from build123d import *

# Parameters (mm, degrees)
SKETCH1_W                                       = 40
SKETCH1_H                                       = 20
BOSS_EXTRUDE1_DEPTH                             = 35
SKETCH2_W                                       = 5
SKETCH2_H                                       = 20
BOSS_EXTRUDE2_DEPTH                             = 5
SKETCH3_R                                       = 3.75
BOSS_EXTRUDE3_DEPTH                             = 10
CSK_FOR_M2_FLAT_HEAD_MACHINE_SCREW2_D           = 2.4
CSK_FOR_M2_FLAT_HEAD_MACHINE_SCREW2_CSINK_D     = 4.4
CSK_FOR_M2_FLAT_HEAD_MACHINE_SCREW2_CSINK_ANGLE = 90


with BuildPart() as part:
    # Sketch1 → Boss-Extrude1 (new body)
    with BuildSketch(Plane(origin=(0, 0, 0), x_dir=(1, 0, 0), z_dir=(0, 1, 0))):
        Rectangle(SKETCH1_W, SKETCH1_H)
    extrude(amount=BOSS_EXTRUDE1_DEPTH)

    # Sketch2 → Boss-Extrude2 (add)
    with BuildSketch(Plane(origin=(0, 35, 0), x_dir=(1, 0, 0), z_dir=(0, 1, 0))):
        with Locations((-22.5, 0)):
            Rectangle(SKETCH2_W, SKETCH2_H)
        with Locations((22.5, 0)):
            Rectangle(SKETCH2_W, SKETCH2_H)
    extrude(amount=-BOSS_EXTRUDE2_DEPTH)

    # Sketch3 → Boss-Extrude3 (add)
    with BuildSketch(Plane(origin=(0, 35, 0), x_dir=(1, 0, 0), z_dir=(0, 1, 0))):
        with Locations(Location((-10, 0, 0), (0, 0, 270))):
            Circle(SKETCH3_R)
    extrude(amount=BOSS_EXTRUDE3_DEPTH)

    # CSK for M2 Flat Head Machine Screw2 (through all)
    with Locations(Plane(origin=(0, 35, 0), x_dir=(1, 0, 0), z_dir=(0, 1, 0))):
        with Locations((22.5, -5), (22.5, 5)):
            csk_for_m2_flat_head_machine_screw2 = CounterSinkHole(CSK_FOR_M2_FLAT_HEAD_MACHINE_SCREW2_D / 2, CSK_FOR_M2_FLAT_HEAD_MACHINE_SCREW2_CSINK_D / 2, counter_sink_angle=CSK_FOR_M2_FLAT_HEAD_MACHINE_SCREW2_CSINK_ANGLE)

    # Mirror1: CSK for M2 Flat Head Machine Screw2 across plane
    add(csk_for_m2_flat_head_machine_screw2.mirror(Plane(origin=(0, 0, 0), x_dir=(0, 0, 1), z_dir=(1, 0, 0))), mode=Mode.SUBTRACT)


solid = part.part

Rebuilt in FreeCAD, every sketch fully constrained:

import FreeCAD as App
import Part
import Sketcher

V = App.Vector
Q = App.Units.Quantity

doc = App.newDocument("Part")
body = doc.addObject("PartDesign::Body", "Body")

# Sketch on XZ plane
sketch1 = body.newObject("Sketcher::SketchObject", "Sketch")
sketch1.AttachmentSupport = (doc.getObject("XZ_Plane"), [""])
sketch1.MapMode = "FlatFace"
sketch1.addGeometry([
    Part.LineSegment(V(-20, -10, 0), V(-20, 10, 0)),
    Part.LineSegment(V(-20, 10, 0), V(20, 10, 0)),
    Part.LineSegment(V(20, 10, 0), V(20, -10, 0)),
    Part.LineSegment(V(20, -10, 0), V(-20, -10, 0)),
], False)
sketch1.addConstraint([
    Sketcher.Constraint("Coincident", 0, 2, 1, 1),
    Sketcher.Constraint("Coincident", 1, 2, 2, 1),
    Sketcher.Constraint("Coincident", 2, 2, 3, 1),
    Sketcher.Constraint("Coincident", 3, 2, 0, 1),
    Sketcher.Constraint("Vertical", 0),
    Sketcher.Constraint("Horizontal", 1),
    Sketcher.Constraint("Vertical", 2),
    Sketcher.Constraint("Horizontal", 3),
    Sketcher.Constraint("Symmetric", 0, 2, 2, 2, -1, 1),
    Sketcher.Constraint("DistanceX", 1, 1, 1, 2, Q("40 mm")),
    Sketcher.Constraint("DistanceY", 0, 1, 0, 2, Q("20 mm")),
])
pad1 = body.newObject("PartDesign::Pad", "Pad")
pad1.Profile = sketch1
pad1.Length = 35
pad1.Reversed = True

# Sketch on XZ plane
sketch2 = body.newObject("Sketcher::SketchObject", "Sketch001")
sketch2.AttachmentSupport = (doc.getObject("XZ_Plane"), [""])
sketch2.MapMode = "FlatFace"
sketch2.AttachmentOffset = App.Placement(V(0, 0, -35), App.Rotation())
sketch2.addGeometry([
    Part.LineSegment(V(-25, -10, 0), V(-25, 10, 0)),  # 0
    Part.LineSegment(V(-25, 10, 0), V(-20, 10, 0)),  # 1
    Part.LineSegment(V(-20, 10, 0), V(-20, -10, 0)),  # 2
    Part.LineSegment(V(-20, -10, 0), V(-25, -10, 0)),  # 3
    Part.LineSegment(V(20, -10, 0), V(20, 10, 0)),  # 4
    Part.LineSegment(V(20, 10, 0), V(25, 10, 0)),  # 5
    Part.LineSegment(V(25, 10, 0), V(25, -10, 0)),  # 6
    Part.LineSegment(V(25, -10, 0), V(20, -10, 0)),  # 7
], False)
sketch2.addConstraint([
    Sketcher.Constraint("Coincident", 0, 2, 1, 1),
    Sketcher.Constraint("Coincident", 1, 2, 2, 1),
    Sketcher.Constraint("Coincident", 2, 2, 3, 1),
    Sketcher.Constraint("Coincident", 3, 2, 0, 1),
    Sketcher.Constraint("Coincident", 4, 2, 5, 1),
    Sketcher.Constraint("Coincident", 5, 2, 6, 1),
    Sketcher.Constraint("Coincident", 6, 2, 7, 1),
    Sketcher.Constraint("Coincident", 7, 2, 4, 1),
    Sketcher.Constraint("Vertical", 0),
    Sketcher.Constraint("Horizontal", 1),
    Sketcher.Constraint("Vertical", 2),
    Sketcher.Constraint("Horizontal", 3),
    Sketcher.Constraint("Vertical", 4),
    Sketcher.Constraint("Horizontal", 5),
    Sketcher.Constraint("Vertical", 6),
    Sketcher.Constraint("Horizontal", 7),
    Sketcher.Constraint("Symmetric", 2, 2, 4, 2, -1, 1),
    Sketcher.Constraint("Symmetric", 0, 2, 6, 2, -1, 1),
    Sketcher.Constraint("Horizontal", 1, 2, 4, 2),
    Sketcher.Constraint("DistanceX", 1, 1, 1, 2, Q("5 mm")),
    Sketcher.Constraint("DistanceY", 0, 1, 0, 2, Q("20 mm")),
    Sketcher.Constraint("DistanceX", 0, 2, -1, 1, Q("25 mm")),
])
pad2 = body.newObject("PartDesign::Pad", "Pad001")
pad2.Profile = sketch2
pad2.Length = 5

# Sketch on XZ plane
sketch3 = body.newObject("Sketcher::SketchObject", "Sketch002")
sketch3.AttachmentSupport = (doc.getObject("XZ_Plane"), [""])
sketch3.MapMode = "FlatFace"
sketch3.AttachmentOffset = App.Placement(V(0, 0, -35), App.Rotation())
sketch3.addGeometry(Part.Circle(V(-10, 0, 0), V(0, 0, 1), 3.75), False)
sketch3.addConstraint([
    Sketcher.Constraint("PointOnObject", 0, 3, -1),
    Sketcher.Constraint("Diameter", 0, Q("7.5 mm")),
    Sketcher.Constraint("DistanceX", 0, 3, -1, 1, Q("10 mm")),
])
pad3 = body.newObject("PartDesign::Pad", "Pad002")
pad3.Profile = sketch3
pad3.Length = 10
pad3.Reversed = True

# Sketch on XZ plane
sketch4 = body.newObject("Sketcher::SketchObject", "Sketch003")
sketch4.AttachmentSupport = (doc.getObject("XZ_Plane"), [""])
sketch4.MapMode = "FlatFace"
sketch4.AttachmentOffset = App.Placement(V(0, 0, -35), App.Rotation())
sketch4.addGeometry([
    Part.Circle(V(22.5, 5, 0), V(0, 0, 1), 1.2),
    Part.Circle(V(22.5, -5, 0), V(0, 0, 1), 1.2),
], False)
sketch4.addConstraint([
    Sketcher.Constraint("Equal", 0, 1),
    Sketcher.Constraint("Symmetric", 0, 3, 1, 3, -1),
    Sketcher.Constraint("Diameter", 0, Q("2.4 mm")),
    Sketcher.Constraint("DistanceY", -1, 1, 0, 3, Q("5 mm")),
    Sketcher.Constraint("DistanceX", -1, 1, 0, 3, Q("22.5 mm")),
])
doc.recompute()
hole = body.newObject("PartDesign::Hole", "Hole")
hole.Profile = sketch4
hole.ThreadType = "None"
hole.Diameter = 2.4
hole.DepthType = "ThroughAll"
hole.HoleCutType = "Countersink"
hole.HoleCutDiameter = 4.4
hole.HoleCutCountersinkAngle = 90
hole.Reversed = True
doc.recompute()

mirrored = body.newObject("PartDesign::Mirrored", "Mirrored")
mirrored.Originals = [hole]
mirrored.MirrorPlane = (doc.getObject("YZ_Plane"), [""])
body.Tip = mirrored

doc.recompute()
